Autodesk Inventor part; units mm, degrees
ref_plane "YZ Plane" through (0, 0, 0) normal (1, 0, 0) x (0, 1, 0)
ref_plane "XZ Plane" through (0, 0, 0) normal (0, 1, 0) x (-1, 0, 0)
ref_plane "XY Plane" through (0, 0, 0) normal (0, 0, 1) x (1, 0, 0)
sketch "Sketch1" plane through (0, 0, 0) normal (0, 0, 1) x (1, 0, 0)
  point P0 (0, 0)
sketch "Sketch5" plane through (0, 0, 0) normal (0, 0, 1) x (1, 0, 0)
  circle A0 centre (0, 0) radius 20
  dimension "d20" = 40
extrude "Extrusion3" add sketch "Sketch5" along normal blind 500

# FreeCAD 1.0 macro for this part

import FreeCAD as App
import Part
import Sketcher

V = App.Vector

doc = App.newDocument("Part")
body = doc.addObject("PartDesign::Body", "Body")

# Sketch on XY plane
sketch1 = body.newObject("Sketcher::SketchObject", "Sketch")
sketch1.AttachmentSupport = (doc.getObject("XY_Plane"), [""])
sketch1.MapMode = "FlatFace"
sketch1.addGeometry(Part.Circle(V(0, 0, 0), V(0, 0, 1), 20), False)
sketch1.addConstraint([
    Sketcher.Constraint("Coincident", 0, 3, -1, 1),
    Sketcher.Constraint("Diameter", 0, 40.0),
])
pad1 = body.newObject("PartDesign::Pad", "Pad")
pad1.Profile = sketch1
pad1.Length = 500

doc.recompute()
